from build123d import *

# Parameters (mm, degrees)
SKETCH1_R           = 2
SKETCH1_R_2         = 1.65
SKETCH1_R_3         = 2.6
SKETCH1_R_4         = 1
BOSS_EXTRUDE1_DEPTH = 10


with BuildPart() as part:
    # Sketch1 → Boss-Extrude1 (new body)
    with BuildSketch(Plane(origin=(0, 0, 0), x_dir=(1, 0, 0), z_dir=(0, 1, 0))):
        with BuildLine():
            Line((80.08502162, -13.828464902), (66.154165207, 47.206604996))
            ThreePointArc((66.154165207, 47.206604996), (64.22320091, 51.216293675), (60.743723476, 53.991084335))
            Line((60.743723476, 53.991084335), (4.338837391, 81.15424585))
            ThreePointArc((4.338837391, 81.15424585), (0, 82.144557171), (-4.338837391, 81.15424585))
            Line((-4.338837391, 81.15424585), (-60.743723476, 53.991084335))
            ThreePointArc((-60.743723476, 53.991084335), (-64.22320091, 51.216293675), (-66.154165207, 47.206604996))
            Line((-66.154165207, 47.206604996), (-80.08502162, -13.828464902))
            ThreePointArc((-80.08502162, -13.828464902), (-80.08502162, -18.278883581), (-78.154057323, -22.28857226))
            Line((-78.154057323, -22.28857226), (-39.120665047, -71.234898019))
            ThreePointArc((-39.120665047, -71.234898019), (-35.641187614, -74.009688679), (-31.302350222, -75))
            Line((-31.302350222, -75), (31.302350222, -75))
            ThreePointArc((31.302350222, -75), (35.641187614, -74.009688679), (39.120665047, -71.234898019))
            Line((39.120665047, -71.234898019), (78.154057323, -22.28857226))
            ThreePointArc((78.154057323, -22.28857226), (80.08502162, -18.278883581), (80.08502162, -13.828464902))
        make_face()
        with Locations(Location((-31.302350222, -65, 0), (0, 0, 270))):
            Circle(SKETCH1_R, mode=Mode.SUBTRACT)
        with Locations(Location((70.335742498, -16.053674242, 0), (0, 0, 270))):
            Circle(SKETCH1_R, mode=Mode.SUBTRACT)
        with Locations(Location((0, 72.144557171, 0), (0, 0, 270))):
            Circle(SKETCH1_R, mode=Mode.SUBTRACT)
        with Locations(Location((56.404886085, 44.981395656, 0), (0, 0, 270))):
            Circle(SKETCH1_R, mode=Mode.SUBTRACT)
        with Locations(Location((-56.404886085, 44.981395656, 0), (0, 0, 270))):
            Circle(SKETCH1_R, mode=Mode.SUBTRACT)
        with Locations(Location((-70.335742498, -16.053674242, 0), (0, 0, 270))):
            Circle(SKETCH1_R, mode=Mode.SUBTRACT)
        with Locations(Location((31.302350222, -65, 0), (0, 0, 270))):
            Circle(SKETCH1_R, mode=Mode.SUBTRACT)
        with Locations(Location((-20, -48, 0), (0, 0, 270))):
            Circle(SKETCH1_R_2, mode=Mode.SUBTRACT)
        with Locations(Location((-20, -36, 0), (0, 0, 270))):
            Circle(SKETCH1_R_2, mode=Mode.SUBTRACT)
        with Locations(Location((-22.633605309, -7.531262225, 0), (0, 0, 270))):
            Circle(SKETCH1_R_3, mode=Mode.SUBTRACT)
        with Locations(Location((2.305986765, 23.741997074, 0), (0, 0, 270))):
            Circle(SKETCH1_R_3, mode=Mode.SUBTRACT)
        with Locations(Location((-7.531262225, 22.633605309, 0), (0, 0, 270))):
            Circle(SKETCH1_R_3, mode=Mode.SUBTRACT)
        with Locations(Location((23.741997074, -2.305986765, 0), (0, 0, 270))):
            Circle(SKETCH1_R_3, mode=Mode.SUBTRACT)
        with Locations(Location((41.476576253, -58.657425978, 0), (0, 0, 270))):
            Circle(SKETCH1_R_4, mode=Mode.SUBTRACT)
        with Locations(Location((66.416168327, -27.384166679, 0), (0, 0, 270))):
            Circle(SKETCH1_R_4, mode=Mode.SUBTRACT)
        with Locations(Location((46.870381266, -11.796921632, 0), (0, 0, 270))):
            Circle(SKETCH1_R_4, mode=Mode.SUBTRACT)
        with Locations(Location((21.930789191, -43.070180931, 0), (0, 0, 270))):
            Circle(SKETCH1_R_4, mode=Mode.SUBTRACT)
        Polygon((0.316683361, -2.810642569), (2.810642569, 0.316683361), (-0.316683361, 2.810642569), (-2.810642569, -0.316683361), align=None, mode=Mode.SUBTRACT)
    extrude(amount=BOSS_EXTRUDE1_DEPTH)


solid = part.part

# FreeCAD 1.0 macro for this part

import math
import FreeCAD as App
import Part
import Sketcher


def add_polygon(sketch, points):
    """Adds a closed chain of lines whose ends are joined by coincident constraints."""
    first, n = sketch.GeometryCount, len(points)
    for a, b in zip(points, points[1:] + points[:1]):
        sketch.addGeometry(Part.LineSegment(App.Vector(*a, 0), App.Vector(*b, 0)), False)
    for i in range(n):
        sketch.addConstraint(Sketcher.Constraint("Coincident", first + i, 2, first + (i + 1) % n, 1))

doc = App.newDocument("Part")
body = doc.addObject("PartDesign::Body", "Body")

# Sketch on XZ plane
sketch1 = doc.addObject("Sketcher::SketchObject", "Sketch")
body.addObject(sketch1)
sketch1.AttachmentSupport = (doc.XZ_Plane, [""])
sketch1.MapMode = "FlatFace"
sketch1.addGeometry(Part.LineSegment(App.Vector(80.085022, 13.828465, 0), App.Vector(66.154165, -47.206605, 0)), False)  # 0
sketch1.addGeometry(Part.ArcOfCircle(Part.Circle(App.Vector(56.404886, -44.981396, 0), App.Vector(0, 0, 1), 10), math.radians(-64.285714), math.radians(-12.857143)), False)  # 1
sketch1.addGeometry(Part.LineSegment(App.Vector(60.743723, -53.991084, 0), App.Vector(4.338837, -81.154246, 0)), False)  # 2
sketch1.addGeometry(Part.ArcOfCircle(Part.Circle(App.Vector(0, -72.144557, 0), App.Vector(0, 0, 1), 10), math.radians(-115.714286), math.radians(-64.285714)), False)  # 3
sketch1.addGeometry(Part.LineSegment(App.Vector(-4.338837, -81.154246, 0), App.Vector(-60.743723, -53.991084, 0)), False)  # 4
sketch1.addGeometry(Part.ArcOfCircle(Part.Circle(App.Vector(-56.404886, -44.981396, 0), App.Vector(0, 0, 1), 10), math.radians(-167.142857), math.radians(-115.714286)), False)  # 5
sketch1.addGeometry(Part.LineSegment(App.Vector(-66.154165, -47.206605, 0), App.Vector(-80.085022, 13.828465, 0)), False)  # 6
sketch1.addGeometry(Part.ArcOfCircle(Part.Circle(App.Vector(-70.335742, 16.053674, 0), App.Vector(0, 0, 1), 10), math.radians(141.428571), math.radians(192.857143)), False)  # 7
sketch1.addGeometry(Part.LineSegment(App.Vector(-78.154057, 22.288572, 0), App.Vector(-39.120665, 71.234898, 0)), False)  # 8
sketch1.addGeometry(Part.ArcOfCircle(Part.Circle(App.Vector(-31.30235, 65, 0), App.Vector(0, 0, 1), 10), math.radians(90), math.radians(141.428571)), False)  # 9
sketch1.addGeometry(Part.LineSegment(App.Vector(-31.30235, 75, 0), App.Vector(31.30235, 75, 0)), False)  # 10
sketch1.addGeometry(Part.ArcOfCircle(Part.Circle(App.Vector(31.30235, 65, 0), App.Vector(0, 0, 1), 10), math.radians(38.571429), math.radians(90)), False)  # 11
sketch1.addGeometry(Part.LineSegment(App.Vector(39.120665, 71.234898, 0), App.Vector(78.154057, 22.288572, 0)), False)  # 12
sketch1.addGeometry(Part.ArcOfCircle(Part.Circle(App.Vector(70.335742, 16.053674, 0), App.Vector(0, 0, 1), 10), math.radians(-12.857143), math.radians(38.571429)), False)  # 13
sketch1.addGeometry(Part.Circle(App.Vector(-31.30235, 65, 0), App.Vector(0, 0, 1), 2), False)  # 14
sketch1.addGeometry(Part.Circle(App.Vector(-20, 48, 0), App.Vector(0, 0, 1), 1.65), False)  # 15
sketch1.addGeometry(Part.Circle(App.Vector(-20, 36, 0), App.Vector(0, 0, 1), 1.65), False)  # 16
sketch1.addGeometry(Part.Circle(App.Vector(-70.335742, 16.053674, 0), App.Vector(0, 0, 1), 2), False)  # 17
sketch1.addGeometry(Part.Circle(App.Vector(-22.633605, 7.531262, 0), App.Vector(0, 0, 1), 2.6), False)  # 18
sketch1.addGeometry(Part.Circle(App.Vector(31.30235, 65, 0), App.Vector(0, 0, 1), 2), False)  # 19
sketch1.addGeometry(Part.Circle(App.Vector(21.930789, 43.070181, 0), App.Vector(0, 0, 1), 1), False)  # 20
sketch1.addGeometry(Part.Circle(App.Vector(41.476576, 58.657426, 0), App.Vector(0, 0, 1), 1), False)  # 21
add_polygon(sketch1, [(2.810643, -0.316683), (0.316683, 2.810643), (-2.810643, 0.316683), (-0.316683, -2.810643)])  # lines 22-25
sketch1.addGeometry(Part.Circle(App.Vector(23.741997, 2.305987, 0), App.Vector(0, 0, 1), 2.6), False)  # 26
sketch1.addGeometry(Part.Circle(App.Vector(66.416168, 27.384167, 0), App.Vector(0, 0, 1), 1), False)  # 27
sketch1.addGeometry(Part.Circle(App.Vector(70.335742, 16.053674, 0), App.Vector(0, 0, 1), 2), False)  # 28
sketch1.addGeometry(Part.Circle(App.Vector(46.870381, 11.796922, 0), App.Vector(0, 0, 1), 1), False)  # 29
sketch1.addGeometry(Part.Circle(App.Vector(-7.531262, -22.633605, 0), App.Vector(0, 0, 1), 2.6), False)  # 30
sketch1.addGeometry(Part.Circle(App.Vector(-56.404886, -44.981396, 0), App.Vector(0, 0, 1), 2), False)  # 31
sketch1.addGeometry(Part.Circle(App.Vector(2.305987, -23.741997, 0), App.Vector(0, 0, 1), 2.6), False)  # 32
sketch1.addGeometry(Part.Circle(App.Vector(0, -72.144557, 0), App.Vector(0, 0, 1), 2), False)  # 33
sketch1.addGeometry(Part.Circle(App.Vector(56.404886, -44.981396, 0), App.Vector(0, 0, 1), 2), False)  # 34
sketch1.addConstraint([
    Sketcher.Constraint("Coincident", 0, 2, 1, 2),
    Sketcher.Constraint("Coincident", 1, 1, 2, 1),
    Sketcher.Constraint("Coincident", 2, 2, 3, 2),
    Sketcher.Constraint("Coincident", 3, 1, 4, 1),
    Sketcher.Constraint("Coincident", 4, 2, 5, 2),
    Sketcher.Constraint("Coincident", 5, 1, 6, 1),
    Sketcher.Constraint("Coincident", 6, 2, 7, 2),
    Sketcher.Constraint("Coincident", 7, 1, 8, 1),
    Sketcher.Constraint("Coincident", 8, 2, 9, 2),
    Sketcher.Constraint("Coincident", 9, 1, 10, 1),
    Sketcher.Constraint("Coincident", 10, 2, 11, 2),
    Sketcher.Constraint("Coincident", 11, 1, 12, 1),
    Sketcher.Constraint("Coincident", 12, 2, 13, 2),
    Sketcher.Constraint("Coincident", 13, 1, 0, 1),
    Sketcher.Constraint("Horizontal", 10),
    Sketcher.Constraint("Coincident", 14, 3, 9, 3),
    Sketcher.Constraint("Coincident", 17, 3, 7, 3),
    Sketcher.Constraint("Coincident", 19, 3, 11, 3),
    Sketcher.Constraint("Coincident", 28, 3, 13, 3),
    Sketcher.Constraint("Coincident", 31, 3, 5, 3),
    Sketcher.Constraint("Coincident", 33, 3, 3, 3),
    Sketcher.Constraint("Coincident", 34, 3, 1, 3),
    Sketcher.Constraint("PointOnObject", 3, 3, -2),
    Sketcher.Constraint("Diameter", 14, 4.0),
    Sketcher.Constraint("Diameter", 17, 4.0),
    Sketcher.Constraint("Diameter", 19, 4.0),
    Sketcher.Constraint("Diameter", 20, 2.0),
    Sketcher.Constraint("Diameter", 21, 2.0),
    Sketcher.Constraint("Diameter", 27, 2.0),
    Sketcher.Constraint("Diameter", 28, 4.0),
    Sketcher.Constraint("Diameter", 29, 2.0),
    Sketcher.Constraint("Diameter", 31, 4.0),
    Sketcher.Constraint("Diameter", 33, 4.0),
    Sketcher.Constraint("Diameter", 34, 4.0),
    Sketcher.Constraint("Radius", 1, 10.0),
    Sketcher.Constraint("Radius", 3, 10.0),
    Sketcher.Constraint("Radius", 5, 10.0),
    Sketcher.Constraint("Radius", 7, 10.0),
    Sketcher.Constraint("Radius", 9, 10.0),
    Sketcher.Constraint("Radius", 11, 10.0),
    Sketcher.Constraint("Radius", 13, 10.0),
    Sketcher.Constraint("Diameter", 15, 3.3),
    Sketcher.Constraint("Diameter", 16, 3.3),
    Sketcher.Constraint("Diameter", 18, 5.2),
    Sketcher.Constraint("Diameter", 26, 5.2),
    Sketcher.Constraint("Diameter", 30, 5.2),
    Sketcher.Constraint("Diameter", 32, 5.2),
    Sketcher.Constraint("Distance", 22, 4.0),
    Sketcher.Constraint("Distance", 23, 4.0),
    Sketcher.Constraint("Distance", 24, 4.0),
    Sketcher.Constraint("Distance", 25, 4.0),
    Sketcher.Constraint("DistanceY", -1, 1, 9, 3, 65.0),
    Sketcher.Constraint("DistanceX", 15, 3, -1, 1, 20.0),
    Sketcher.Constraint("DistanceY", -1, 1, 15, 3, 48.0),
    Sketcher.Constraint("DistanceX", 16, 3, -1, 1, 20.0),
    Sketcher.Constraint("DistanceY", -1, 1, 16, 3, 36.0),
    Sketcher.Constraint("DistanceX", 10, 1, 10, 2, 62.6047),
    Sketcher.Constraint("Distance", 0, 62.6047),
    Sketcher.Constraint("Distance", 2, 62.6047),
    Sketcher.Constraint("Distance", 4, 62.6047),
    Sketcher.Constraint("Distance", 6, 62.6047),
    Sketcher.Constraint("Distance", 8, 62.6047),
    Sketcher.Constraint("Distance", 12, 62.6047),
    Sketcher.Constraint("DistanceY", -1, 1, 8, 2, 71.234898),
    Sketcher.Constraint("DistanceY", -1, 1, 11, 1, 71.234898),
    Sketcher.Constraint("DistanceX", 9, 3, 11, 3, 62.6047),
    Sketcher.Constraint("DistanceX", 32, 3, 34, 3, 54.098899),
    Sketcher.Constraint("DistanceY", 34, 3, 32, 3, 21.239399),
    Sketcher.Constraint("DistanceX", 30, 3, 2, 2, 11.8701),
    Sketcher.Constraint("DistanceY", 17, 3, 7, 1, 6.234898),
    Sketcher.Constraint("DistanceY", 28, 3, 12, 2, 6.234898),
    Sketcher.Constraint("DistanceY", 13, 1, 27, 3, 13.555702),
    Sketcher.Constraint("DistanceX", 9, 3, -1, 1, 31.30235),
    Sketcher.Constraint("DistanceX", -1, 1, 20, 3, 21.930789),
    Sketcher.Constraint("DistanceY", -1, 1, 20, 3, 43.070181),
    Sketcher.Constraint("DistanceX", -1, 1, 27, 3, 66.416168),
    Sketcher.Constraint("DistanceX", -1, 1, 29, 3, 46.870381),
    Sketcher.Constraint("DistanceY", -1, 1, 29, 3, 11.796922),
    Sketcher.Constraint("DistanceX", 6, 2, -1, 1, 80.085022),
    Sketcher.Constraint("DistanceX", 9, 1, -1, 1, 31.30235),
    Sketcher.Constraint("DistanceX", -1, 1, 13, 1, 80.085022),
    Sketcher.Constraint("DistanceY", 3, 3, 1, 3, 27.163162),
    Sketcher.Constraint("DistanceY", 3, 3, 5, 3, 27.163162),
    Sketcher.Constraint("DistanceY", 5, 3, 7, 3, 61.03507),
    Sketcher.Constraint("DistanceX", 7, 3, 1, 3, 126.740629),
    Sketcher.Constraint("DistanceY", 1, 3, 13, 3, 61.03507),
    Sketcher.Constraint("DistanceY", 13, 3, 21, 3, 42.603752),
    Sketcher.Constraint("DistanceX", 26, 3, 1, 3, 32.662889),
    Sketcher.Constraint("DistanceY", 27, 3, 21, 3, 31.273259),
    Sketcher.Constraint("DistanceY", 26, 3, 27, 3, 25.07818),
    Sketcher.Constraint("DistanceX", 30, 3, 26, 3, 31.273259),
    Sketcher.Constraint("DistanceY", 3, 3, 30, 3, 49.510952),
    Sketcher.Constraint("DistanceX", 31, 3, 18, 3, 33.771281),
    Sketcher.Constraint("DistanceY", 32, 3, 18, 3, 31.273259),
    Sketcher.Constraint("DistanceY", 3, 1, 3, 3, 9.009689),
    Sketcher.Constraint("DistanceY", 4, 2, 5, 3, 9.009689),
    Sketcher.Constraint("DistanceX", 11, 1, 21, 3, 2.355911),
    Sketcher.Constraint("DistanceX", 18, 3, 22, 2, 22.950289),
    Sketcher.Constraint("DistanceY", 22, 2, 18, 3, 4.72062),
    Sketcher.Constraint("DistanceY", 23, 2, 22, 2, 2.493959),
    Sketcher.Constraint("DistanceX", 23, 2, 24, 2, 2.493959),
])
pad1 = doc.addObject("PartDesign::Pad", "Pad")
body.addObject(pad1)
pad1.Profile = sketch1
pad1.Length = 10
pad1.Reversed = True

doc.recompute()
